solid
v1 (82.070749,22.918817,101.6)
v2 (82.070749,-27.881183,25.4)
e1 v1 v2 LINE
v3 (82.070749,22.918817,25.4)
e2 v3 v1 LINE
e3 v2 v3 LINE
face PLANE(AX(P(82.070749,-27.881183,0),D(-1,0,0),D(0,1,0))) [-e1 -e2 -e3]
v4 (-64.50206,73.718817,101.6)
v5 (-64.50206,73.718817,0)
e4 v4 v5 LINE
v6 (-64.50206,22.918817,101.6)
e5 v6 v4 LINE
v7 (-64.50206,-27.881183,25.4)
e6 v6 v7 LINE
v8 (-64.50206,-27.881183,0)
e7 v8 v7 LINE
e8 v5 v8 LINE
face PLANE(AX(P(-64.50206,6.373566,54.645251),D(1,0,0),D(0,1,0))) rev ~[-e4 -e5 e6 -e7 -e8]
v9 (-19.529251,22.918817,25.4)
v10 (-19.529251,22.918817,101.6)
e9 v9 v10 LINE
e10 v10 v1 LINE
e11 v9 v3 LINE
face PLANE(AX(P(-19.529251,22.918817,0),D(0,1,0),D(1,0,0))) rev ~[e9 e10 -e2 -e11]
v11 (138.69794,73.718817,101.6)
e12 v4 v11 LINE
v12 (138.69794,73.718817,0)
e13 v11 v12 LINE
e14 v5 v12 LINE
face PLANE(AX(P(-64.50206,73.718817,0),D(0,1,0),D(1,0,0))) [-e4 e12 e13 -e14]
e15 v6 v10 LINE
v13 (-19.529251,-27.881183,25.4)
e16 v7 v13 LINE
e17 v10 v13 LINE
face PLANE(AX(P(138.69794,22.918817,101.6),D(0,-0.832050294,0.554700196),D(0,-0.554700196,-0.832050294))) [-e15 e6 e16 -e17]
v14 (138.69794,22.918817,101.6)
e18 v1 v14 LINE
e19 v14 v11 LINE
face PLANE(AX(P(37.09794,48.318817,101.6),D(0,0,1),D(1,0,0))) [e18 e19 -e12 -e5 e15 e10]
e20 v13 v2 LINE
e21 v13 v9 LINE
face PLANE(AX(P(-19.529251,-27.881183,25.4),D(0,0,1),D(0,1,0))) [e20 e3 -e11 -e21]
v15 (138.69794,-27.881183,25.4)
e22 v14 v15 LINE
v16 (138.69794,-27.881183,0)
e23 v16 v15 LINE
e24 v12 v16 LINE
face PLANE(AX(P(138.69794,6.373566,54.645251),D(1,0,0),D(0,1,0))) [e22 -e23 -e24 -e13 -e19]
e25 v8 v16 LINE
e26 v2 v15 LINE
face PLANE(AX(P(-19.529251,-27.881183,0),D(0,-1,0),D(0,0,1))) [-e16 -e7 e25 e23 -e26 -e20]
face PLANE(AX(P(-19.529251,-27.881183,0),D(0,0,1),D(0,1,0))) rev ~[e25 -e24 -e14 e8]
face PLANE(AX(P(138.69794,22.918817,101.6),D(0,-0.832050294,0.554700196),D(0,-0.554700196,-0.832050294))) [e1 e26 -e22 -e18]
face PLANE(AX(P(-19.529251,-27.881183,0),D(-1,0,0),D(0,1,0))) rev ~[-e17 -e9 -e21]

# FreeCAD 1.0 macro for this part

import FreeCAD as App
import Part
import Sketcher

V = App.Vector
Q = App.Units.Quantity

doc = App.newDocument("Part")
params = doc.addObject("Spreadsheet::Sheet", "Params")
for row, (alias, value) in enumerate([
    ("sketch1_width", "8 in"),
    ("sketch1_height", "2 in"),
    ("pad1_length", "4 in"),
    ("sketch2_width", "4 in"),
    ("sketch2_height", "1 in"),
    ("pad2_length", "8 in"),
    ("sketch3_width", "2 in"),
    ("sketch3_height", "3 in"),
    ("pad3_length", "8 in"),
    ("sketch4_width", "4 in"),
    ("sketch4_height", "2 in"),
    ("pocket1_length", "4 in"),
    ("sketch5_width", "2 in"),
    ("sketch5_height", "1 in"),
    ("pad4_length", "4 in"),
], start=1):
    params.set(f"A{row}", alias)
    params.set(f"B{row}", "=" + value)
    params.setAlias(f"B{row}", alias)

body = doc.addObject("PartDesign::Body", "Body")

sketch1 = doc.addObject("Sketcher::SketchObject", "Sketch")
body.addObject(sketch1)
sketch1.AttachmentSupport = (doc.XY_Plane, [""])
sketch1.MapMode = "FlatFace"
sketch1.addGeometry([
    Part.LineSegment(V(-64.50206, 73.718817, 0), V(-64.50206, 22.918817, 0)),
    Part.LineSegment(V(-64.50206, 22.918817, 0), V(138.69794, 22.918817, 0)),
    Part.LineSegment(V(138.69794, 22.918817, 0), V(138.69794, 73.718817, 0)),
    Part.LineSegment(V(138.69794, 73.718817, 0), V(-64.50206, 73.718817, 0)),
], False)
sketch1.addConstraint([
    Sketcher.Constraint("Coincident", 0, 2, 1, 1),
    Sketcher.Constraint("Coincident", 1, 2, 2, 1),
    Sketcher.Constraint("Coincident", 2, 2, 3, 1),
    Sketcher.Constraint("Coincident", 3, 2, 0, 1),
    Sketcher.Constraint("Vertical", 0),
    Sketcher.Constraint("Horizontal", 1),
    Sketcher.Constraint("Vertical", 2),
    Sketcher.Constraint("Horizontal", 3),
    Sketcher.Constraint("DistanceX", 1, 1, 1, 2, Q("8 in")),
    Sketcher.Constraint("DistanceY", 0, 2, 0, 1, Q("2 in")),
    Sketcher.Constraint("DistanceX", 0, 2, -1, 1, Q("64.50206 mm")),
    Sketcher.Constraint("DistanceY", -1, 1, 0, 2, Q("22.918817 mm")),
])
sketch1.setExpression("Constraints[8]", "Params.sketch1_width")
sketch1.setExpression("Constraints[9]", "Params.sketch1_height")
pad1 = doc.addObject("PartDesign::Pad", "Pad")
body.addObject(pad1)
pad1.Profile = sketch1
pad1.setExpression("Length", "Params.pad1_length")

sketch2 = doc.addObject("Sketcher::SketchObject", "Sketch001")
body.addObject(sketch2)
sketch2.AttachmentSupport = (doc.YZ_Plane, [""])
sketch2.MapMode = "FlatFace"
sketch2.AttachmentOffset = App.Placement(V(0, 0, -64.50206), App.Rotation())
sketch2.addGeometry([
    Part.LineSegment(V(73.718817, 25.4, 0), V(73.718817, 0, 0)),
    Part.LineSegment(V(73.718817, 0, 0), V(-27.881183, 0, 0)),
    Part.LineSegment(V(-27.881183, 0, 0), V(-27.881183, 25.4, 0)),
    Part.LineSegment(V(-27.881183, 25.4, 0), V(73.718817, 25.4, 0)),
], False)
sketch2.addConstraint([
    Sketcher.Constraint("Coincident", 0, 2, 1, 1),
    Sketcher.Constraint("Coincident", 1, 2, 2, 1),
    Sketcher.Constraint("Coincident", 2, 2, 3, 1),
    Sketcher.Constraint("Coincident", 3, 2, 0, 1),
    Sketcher.Constraint("Vertical", 0),
    Sketcher.Constraint("Horizontal", 1),
    Sketcher.Constraint("Vertical", 2),
    Sketcher.Constraint("Horizontal", 3),
    Sketcher.Constraint("PointOnObject", 0, 2, -1),
    Sketcher.Constraint("DistanceX", 1, 2, 1, 1, Q("4 in")),
    Sketcher.Constraint("DistanceY", 0, 2, 0, 1, Q("1 in")),
    Sketcher.Constraint("DistanceX", -1, 1, 0, 2, Q("73.718817 mm")),
])
sketch2.setExpression("Constraints[9]", "Params.sketch2_width")
sketch2.setExpression("Constraints[10]", "Params.sketch2_height")
pad2 = doc.addObject("PartDesign::Pad", "Pad001")
body.addObject(pad2)
pad2.Profile = sketch2
pad2.setExpression("Length", "Params.pad2_length")

sketch3 = doc.addObject("Sketcher::SketchObject", "Sketch002")
body.addObject(sketch3)
sketch3.AttachmentSupport = (doc.YZ_Plane, [""])
sketch3.MapMode = "FlatFace"
sketch3.AttachmentOffset = App.Placement(V(0, 0, 138.69794), App.Rotation())
sketch3.addGeometry([
    Part.LineSegment(V(22.918817, 101.6, 0), V(-27.881183, 25.4, 0)),
    Part.LineSegment(V(-27.881183, 25.4, 0), V(22.918817, 25.4, 0)),
    Part.LineSegment(V(22.918817, 25.4, 0), V(22.918817, 101.6, 0)),
], False)
sketch3.addConstraint([
    Sketcher.Constraint("Coincident", 0, 2, 1, 1),
    Sketcher.Constraint("Coincident", 1, 2, 2, 1),
    Sketcher.Constraint("Coincident", 2, 2, 0, 1),
    Sketcher.Constraint("Horizontal", 1),
    Sketcher.Constraint("Vertical", 2),
    Sketcher.Constraint("DistanceX", 1, 1, 1, 2, Q("2 in")),
    Sketcher.Constraint("DistanceY", 2, 1, 2, 2, Q("3 in")),
    Sketcher.Constraint("DistanceY", -1, 1, 0, 2, Q("1 in")),
    Sketcher.Constraint("DistanceX", 0, 2, -1, 1, Q("27.881183 mm")),
])
sketch3.setExpression("Constraints[5]", "Params.sketch3_width")
sketch3.setExpression("Constraints[6]", "Params.sketch3_height")
pad3 = doc.addObject("PartDesign::Pad", "Pad002")
body.addObject(pad3)
pad3.Profile = sketch3
pad3.setExpression("Length", "Params.pad3_length")
pad3.Reversed = True

sketch4 = doc.addObject("Sketcher::SketchObject", "Sketch003")
body.addObject(sketch4)
sketch4.AttachmentSupport = (doc.XY_Plane, [""])
sketch4.MapMode = "FlatFace"
sketch4.addGeometry([
    Part.LineSegment(V(-19.529251, 22.918817, 0), V(-19.529251, -27.881183, 0)),
    Part.LineSegment(V(-19.529251, -27.881183, 0), V(82.070749, -27.881183, 0)),
    Part.LineSegment(V(82.070749, -27.881183, 0), V(82.070749, 22.918817, 0)),
    Part.LineSegment(V(82.070749, 22.918817, 0), V(-19.529251, 22.918817, 0)),
], False)
sketch4.addConstraint([
    Sketcher.Constraint("Coincident", 0, 2, 1, 1),
    Sketcher.Constraint("Coincident", 1, 2, 2, 1),
    Sketcher.Constraint("Coincident", 2, 2, 3, 1),
    Sketcher.Constraint("Coincident", 3, 2, 0, 1),
    Sketcher.Constraint("Vertical", 0),
    Sketcher.Constraint("Horizontal", 1),
    Sketcher.Constraint("Vertical", 2),
    Sketcher.Constraint("Horizontal", 3),
    Sketcher.Constraint("DistanceX", 1, 1, 1, 2, Q("4 in")),
    Sketcher.Constraint("DistanceY", 0, 2, 0, 1, Q("2 in")),
    Sketcher.Constraint("DistanceX", 0, 2, -1, 1, Q("19.529251 mm")),
    Sketcher.Constraint("DistanceY", 0, 2, -1, 1, Q("27.881183 mm")),
])
sketch4.setExpression("Constraints[8]", "Params.sketch4_width")
sketch4.setExpression("Constraints[9]", "Params.sketch4_height")
pocket1 = doc.addObject("PartDesign::Pocket", "Pocket")
body.addObject(pocket1)
pocket1.Profile = sketch4
pocket1.setExpression("Length", "Params.pocket1_length")
pocket1.Reversed = True

sketch5 = doc.addObject("Sketcher::SketchObject", "Sketch004")
body.addObject(sketch5)
sketch5.AttachmentSupport = (doc.YZ_Plane, [""])
sketch5.MapMode = "FlatFace"
sketch5.AttachmentOffset = App.Placement(V(0, 0, -19.529251), App.Rotation())
sketch5.addGeometry([
    Part.LineSegment(V(-27.881183, 25.4, 0), V(-27.881183, 0, 0)),
    Part.LineSegment(V(-27.881183, 0, 0), V(22.918817, 0, 0)),
    Part.LineSegment(V(22.918817, 0, 0), V(22.918817, 25.4, 0)),
    Part.LineSegment(V(22.918817, 25.4, 0), V(-27.881183, 25.4, 0)),
], False)
sketch5.addConstraint([
    Sketcher.Constraint("Coincident", 0, 2, 1, 1),
    Sketcher.Constraint("Coincident", 1, 2, 2, 1),
    Sketcher.Constraint("Coincident", 2, 2, 3, 1),
    Sketcher.Constraint("Coincident", 3, 2, 0, 1),
    Sketcher.Constraint("Vertical", 0),
    Sketcher.Constraint("Horizontal", 1),
    Sketcher.Constraint("Vertical", 2),
    Sketcher.Constraint("Horizontal", 3),
    Sketcher.Constraint("PointOnObject", 0, 2, -1),
    Sketcher.Constraint("DistanceX", 1, 1, 1, 2, Q("2 in")),
    Sketcher.Constraint("DistanceY", 0, 2, 0, 1, Q("1 in")),
    Sketcher.Constraint("DistanceX", 0, 2, -1, 1, Q("27.881183 mm")),
])
sketch5.setExpression("Constraints[9]", "Params.sketch5_width")
sketch5.setExpression("Constraints[10]", "Params.sketch5_height")
pad4 = doc.addObject("PartDesign::Pad", "Pad003")
body.addObject(pad4)
pad4.Profile = sketch5
pad4.setExpression("Length", "Params.pad4_length")

doc.recompute()
